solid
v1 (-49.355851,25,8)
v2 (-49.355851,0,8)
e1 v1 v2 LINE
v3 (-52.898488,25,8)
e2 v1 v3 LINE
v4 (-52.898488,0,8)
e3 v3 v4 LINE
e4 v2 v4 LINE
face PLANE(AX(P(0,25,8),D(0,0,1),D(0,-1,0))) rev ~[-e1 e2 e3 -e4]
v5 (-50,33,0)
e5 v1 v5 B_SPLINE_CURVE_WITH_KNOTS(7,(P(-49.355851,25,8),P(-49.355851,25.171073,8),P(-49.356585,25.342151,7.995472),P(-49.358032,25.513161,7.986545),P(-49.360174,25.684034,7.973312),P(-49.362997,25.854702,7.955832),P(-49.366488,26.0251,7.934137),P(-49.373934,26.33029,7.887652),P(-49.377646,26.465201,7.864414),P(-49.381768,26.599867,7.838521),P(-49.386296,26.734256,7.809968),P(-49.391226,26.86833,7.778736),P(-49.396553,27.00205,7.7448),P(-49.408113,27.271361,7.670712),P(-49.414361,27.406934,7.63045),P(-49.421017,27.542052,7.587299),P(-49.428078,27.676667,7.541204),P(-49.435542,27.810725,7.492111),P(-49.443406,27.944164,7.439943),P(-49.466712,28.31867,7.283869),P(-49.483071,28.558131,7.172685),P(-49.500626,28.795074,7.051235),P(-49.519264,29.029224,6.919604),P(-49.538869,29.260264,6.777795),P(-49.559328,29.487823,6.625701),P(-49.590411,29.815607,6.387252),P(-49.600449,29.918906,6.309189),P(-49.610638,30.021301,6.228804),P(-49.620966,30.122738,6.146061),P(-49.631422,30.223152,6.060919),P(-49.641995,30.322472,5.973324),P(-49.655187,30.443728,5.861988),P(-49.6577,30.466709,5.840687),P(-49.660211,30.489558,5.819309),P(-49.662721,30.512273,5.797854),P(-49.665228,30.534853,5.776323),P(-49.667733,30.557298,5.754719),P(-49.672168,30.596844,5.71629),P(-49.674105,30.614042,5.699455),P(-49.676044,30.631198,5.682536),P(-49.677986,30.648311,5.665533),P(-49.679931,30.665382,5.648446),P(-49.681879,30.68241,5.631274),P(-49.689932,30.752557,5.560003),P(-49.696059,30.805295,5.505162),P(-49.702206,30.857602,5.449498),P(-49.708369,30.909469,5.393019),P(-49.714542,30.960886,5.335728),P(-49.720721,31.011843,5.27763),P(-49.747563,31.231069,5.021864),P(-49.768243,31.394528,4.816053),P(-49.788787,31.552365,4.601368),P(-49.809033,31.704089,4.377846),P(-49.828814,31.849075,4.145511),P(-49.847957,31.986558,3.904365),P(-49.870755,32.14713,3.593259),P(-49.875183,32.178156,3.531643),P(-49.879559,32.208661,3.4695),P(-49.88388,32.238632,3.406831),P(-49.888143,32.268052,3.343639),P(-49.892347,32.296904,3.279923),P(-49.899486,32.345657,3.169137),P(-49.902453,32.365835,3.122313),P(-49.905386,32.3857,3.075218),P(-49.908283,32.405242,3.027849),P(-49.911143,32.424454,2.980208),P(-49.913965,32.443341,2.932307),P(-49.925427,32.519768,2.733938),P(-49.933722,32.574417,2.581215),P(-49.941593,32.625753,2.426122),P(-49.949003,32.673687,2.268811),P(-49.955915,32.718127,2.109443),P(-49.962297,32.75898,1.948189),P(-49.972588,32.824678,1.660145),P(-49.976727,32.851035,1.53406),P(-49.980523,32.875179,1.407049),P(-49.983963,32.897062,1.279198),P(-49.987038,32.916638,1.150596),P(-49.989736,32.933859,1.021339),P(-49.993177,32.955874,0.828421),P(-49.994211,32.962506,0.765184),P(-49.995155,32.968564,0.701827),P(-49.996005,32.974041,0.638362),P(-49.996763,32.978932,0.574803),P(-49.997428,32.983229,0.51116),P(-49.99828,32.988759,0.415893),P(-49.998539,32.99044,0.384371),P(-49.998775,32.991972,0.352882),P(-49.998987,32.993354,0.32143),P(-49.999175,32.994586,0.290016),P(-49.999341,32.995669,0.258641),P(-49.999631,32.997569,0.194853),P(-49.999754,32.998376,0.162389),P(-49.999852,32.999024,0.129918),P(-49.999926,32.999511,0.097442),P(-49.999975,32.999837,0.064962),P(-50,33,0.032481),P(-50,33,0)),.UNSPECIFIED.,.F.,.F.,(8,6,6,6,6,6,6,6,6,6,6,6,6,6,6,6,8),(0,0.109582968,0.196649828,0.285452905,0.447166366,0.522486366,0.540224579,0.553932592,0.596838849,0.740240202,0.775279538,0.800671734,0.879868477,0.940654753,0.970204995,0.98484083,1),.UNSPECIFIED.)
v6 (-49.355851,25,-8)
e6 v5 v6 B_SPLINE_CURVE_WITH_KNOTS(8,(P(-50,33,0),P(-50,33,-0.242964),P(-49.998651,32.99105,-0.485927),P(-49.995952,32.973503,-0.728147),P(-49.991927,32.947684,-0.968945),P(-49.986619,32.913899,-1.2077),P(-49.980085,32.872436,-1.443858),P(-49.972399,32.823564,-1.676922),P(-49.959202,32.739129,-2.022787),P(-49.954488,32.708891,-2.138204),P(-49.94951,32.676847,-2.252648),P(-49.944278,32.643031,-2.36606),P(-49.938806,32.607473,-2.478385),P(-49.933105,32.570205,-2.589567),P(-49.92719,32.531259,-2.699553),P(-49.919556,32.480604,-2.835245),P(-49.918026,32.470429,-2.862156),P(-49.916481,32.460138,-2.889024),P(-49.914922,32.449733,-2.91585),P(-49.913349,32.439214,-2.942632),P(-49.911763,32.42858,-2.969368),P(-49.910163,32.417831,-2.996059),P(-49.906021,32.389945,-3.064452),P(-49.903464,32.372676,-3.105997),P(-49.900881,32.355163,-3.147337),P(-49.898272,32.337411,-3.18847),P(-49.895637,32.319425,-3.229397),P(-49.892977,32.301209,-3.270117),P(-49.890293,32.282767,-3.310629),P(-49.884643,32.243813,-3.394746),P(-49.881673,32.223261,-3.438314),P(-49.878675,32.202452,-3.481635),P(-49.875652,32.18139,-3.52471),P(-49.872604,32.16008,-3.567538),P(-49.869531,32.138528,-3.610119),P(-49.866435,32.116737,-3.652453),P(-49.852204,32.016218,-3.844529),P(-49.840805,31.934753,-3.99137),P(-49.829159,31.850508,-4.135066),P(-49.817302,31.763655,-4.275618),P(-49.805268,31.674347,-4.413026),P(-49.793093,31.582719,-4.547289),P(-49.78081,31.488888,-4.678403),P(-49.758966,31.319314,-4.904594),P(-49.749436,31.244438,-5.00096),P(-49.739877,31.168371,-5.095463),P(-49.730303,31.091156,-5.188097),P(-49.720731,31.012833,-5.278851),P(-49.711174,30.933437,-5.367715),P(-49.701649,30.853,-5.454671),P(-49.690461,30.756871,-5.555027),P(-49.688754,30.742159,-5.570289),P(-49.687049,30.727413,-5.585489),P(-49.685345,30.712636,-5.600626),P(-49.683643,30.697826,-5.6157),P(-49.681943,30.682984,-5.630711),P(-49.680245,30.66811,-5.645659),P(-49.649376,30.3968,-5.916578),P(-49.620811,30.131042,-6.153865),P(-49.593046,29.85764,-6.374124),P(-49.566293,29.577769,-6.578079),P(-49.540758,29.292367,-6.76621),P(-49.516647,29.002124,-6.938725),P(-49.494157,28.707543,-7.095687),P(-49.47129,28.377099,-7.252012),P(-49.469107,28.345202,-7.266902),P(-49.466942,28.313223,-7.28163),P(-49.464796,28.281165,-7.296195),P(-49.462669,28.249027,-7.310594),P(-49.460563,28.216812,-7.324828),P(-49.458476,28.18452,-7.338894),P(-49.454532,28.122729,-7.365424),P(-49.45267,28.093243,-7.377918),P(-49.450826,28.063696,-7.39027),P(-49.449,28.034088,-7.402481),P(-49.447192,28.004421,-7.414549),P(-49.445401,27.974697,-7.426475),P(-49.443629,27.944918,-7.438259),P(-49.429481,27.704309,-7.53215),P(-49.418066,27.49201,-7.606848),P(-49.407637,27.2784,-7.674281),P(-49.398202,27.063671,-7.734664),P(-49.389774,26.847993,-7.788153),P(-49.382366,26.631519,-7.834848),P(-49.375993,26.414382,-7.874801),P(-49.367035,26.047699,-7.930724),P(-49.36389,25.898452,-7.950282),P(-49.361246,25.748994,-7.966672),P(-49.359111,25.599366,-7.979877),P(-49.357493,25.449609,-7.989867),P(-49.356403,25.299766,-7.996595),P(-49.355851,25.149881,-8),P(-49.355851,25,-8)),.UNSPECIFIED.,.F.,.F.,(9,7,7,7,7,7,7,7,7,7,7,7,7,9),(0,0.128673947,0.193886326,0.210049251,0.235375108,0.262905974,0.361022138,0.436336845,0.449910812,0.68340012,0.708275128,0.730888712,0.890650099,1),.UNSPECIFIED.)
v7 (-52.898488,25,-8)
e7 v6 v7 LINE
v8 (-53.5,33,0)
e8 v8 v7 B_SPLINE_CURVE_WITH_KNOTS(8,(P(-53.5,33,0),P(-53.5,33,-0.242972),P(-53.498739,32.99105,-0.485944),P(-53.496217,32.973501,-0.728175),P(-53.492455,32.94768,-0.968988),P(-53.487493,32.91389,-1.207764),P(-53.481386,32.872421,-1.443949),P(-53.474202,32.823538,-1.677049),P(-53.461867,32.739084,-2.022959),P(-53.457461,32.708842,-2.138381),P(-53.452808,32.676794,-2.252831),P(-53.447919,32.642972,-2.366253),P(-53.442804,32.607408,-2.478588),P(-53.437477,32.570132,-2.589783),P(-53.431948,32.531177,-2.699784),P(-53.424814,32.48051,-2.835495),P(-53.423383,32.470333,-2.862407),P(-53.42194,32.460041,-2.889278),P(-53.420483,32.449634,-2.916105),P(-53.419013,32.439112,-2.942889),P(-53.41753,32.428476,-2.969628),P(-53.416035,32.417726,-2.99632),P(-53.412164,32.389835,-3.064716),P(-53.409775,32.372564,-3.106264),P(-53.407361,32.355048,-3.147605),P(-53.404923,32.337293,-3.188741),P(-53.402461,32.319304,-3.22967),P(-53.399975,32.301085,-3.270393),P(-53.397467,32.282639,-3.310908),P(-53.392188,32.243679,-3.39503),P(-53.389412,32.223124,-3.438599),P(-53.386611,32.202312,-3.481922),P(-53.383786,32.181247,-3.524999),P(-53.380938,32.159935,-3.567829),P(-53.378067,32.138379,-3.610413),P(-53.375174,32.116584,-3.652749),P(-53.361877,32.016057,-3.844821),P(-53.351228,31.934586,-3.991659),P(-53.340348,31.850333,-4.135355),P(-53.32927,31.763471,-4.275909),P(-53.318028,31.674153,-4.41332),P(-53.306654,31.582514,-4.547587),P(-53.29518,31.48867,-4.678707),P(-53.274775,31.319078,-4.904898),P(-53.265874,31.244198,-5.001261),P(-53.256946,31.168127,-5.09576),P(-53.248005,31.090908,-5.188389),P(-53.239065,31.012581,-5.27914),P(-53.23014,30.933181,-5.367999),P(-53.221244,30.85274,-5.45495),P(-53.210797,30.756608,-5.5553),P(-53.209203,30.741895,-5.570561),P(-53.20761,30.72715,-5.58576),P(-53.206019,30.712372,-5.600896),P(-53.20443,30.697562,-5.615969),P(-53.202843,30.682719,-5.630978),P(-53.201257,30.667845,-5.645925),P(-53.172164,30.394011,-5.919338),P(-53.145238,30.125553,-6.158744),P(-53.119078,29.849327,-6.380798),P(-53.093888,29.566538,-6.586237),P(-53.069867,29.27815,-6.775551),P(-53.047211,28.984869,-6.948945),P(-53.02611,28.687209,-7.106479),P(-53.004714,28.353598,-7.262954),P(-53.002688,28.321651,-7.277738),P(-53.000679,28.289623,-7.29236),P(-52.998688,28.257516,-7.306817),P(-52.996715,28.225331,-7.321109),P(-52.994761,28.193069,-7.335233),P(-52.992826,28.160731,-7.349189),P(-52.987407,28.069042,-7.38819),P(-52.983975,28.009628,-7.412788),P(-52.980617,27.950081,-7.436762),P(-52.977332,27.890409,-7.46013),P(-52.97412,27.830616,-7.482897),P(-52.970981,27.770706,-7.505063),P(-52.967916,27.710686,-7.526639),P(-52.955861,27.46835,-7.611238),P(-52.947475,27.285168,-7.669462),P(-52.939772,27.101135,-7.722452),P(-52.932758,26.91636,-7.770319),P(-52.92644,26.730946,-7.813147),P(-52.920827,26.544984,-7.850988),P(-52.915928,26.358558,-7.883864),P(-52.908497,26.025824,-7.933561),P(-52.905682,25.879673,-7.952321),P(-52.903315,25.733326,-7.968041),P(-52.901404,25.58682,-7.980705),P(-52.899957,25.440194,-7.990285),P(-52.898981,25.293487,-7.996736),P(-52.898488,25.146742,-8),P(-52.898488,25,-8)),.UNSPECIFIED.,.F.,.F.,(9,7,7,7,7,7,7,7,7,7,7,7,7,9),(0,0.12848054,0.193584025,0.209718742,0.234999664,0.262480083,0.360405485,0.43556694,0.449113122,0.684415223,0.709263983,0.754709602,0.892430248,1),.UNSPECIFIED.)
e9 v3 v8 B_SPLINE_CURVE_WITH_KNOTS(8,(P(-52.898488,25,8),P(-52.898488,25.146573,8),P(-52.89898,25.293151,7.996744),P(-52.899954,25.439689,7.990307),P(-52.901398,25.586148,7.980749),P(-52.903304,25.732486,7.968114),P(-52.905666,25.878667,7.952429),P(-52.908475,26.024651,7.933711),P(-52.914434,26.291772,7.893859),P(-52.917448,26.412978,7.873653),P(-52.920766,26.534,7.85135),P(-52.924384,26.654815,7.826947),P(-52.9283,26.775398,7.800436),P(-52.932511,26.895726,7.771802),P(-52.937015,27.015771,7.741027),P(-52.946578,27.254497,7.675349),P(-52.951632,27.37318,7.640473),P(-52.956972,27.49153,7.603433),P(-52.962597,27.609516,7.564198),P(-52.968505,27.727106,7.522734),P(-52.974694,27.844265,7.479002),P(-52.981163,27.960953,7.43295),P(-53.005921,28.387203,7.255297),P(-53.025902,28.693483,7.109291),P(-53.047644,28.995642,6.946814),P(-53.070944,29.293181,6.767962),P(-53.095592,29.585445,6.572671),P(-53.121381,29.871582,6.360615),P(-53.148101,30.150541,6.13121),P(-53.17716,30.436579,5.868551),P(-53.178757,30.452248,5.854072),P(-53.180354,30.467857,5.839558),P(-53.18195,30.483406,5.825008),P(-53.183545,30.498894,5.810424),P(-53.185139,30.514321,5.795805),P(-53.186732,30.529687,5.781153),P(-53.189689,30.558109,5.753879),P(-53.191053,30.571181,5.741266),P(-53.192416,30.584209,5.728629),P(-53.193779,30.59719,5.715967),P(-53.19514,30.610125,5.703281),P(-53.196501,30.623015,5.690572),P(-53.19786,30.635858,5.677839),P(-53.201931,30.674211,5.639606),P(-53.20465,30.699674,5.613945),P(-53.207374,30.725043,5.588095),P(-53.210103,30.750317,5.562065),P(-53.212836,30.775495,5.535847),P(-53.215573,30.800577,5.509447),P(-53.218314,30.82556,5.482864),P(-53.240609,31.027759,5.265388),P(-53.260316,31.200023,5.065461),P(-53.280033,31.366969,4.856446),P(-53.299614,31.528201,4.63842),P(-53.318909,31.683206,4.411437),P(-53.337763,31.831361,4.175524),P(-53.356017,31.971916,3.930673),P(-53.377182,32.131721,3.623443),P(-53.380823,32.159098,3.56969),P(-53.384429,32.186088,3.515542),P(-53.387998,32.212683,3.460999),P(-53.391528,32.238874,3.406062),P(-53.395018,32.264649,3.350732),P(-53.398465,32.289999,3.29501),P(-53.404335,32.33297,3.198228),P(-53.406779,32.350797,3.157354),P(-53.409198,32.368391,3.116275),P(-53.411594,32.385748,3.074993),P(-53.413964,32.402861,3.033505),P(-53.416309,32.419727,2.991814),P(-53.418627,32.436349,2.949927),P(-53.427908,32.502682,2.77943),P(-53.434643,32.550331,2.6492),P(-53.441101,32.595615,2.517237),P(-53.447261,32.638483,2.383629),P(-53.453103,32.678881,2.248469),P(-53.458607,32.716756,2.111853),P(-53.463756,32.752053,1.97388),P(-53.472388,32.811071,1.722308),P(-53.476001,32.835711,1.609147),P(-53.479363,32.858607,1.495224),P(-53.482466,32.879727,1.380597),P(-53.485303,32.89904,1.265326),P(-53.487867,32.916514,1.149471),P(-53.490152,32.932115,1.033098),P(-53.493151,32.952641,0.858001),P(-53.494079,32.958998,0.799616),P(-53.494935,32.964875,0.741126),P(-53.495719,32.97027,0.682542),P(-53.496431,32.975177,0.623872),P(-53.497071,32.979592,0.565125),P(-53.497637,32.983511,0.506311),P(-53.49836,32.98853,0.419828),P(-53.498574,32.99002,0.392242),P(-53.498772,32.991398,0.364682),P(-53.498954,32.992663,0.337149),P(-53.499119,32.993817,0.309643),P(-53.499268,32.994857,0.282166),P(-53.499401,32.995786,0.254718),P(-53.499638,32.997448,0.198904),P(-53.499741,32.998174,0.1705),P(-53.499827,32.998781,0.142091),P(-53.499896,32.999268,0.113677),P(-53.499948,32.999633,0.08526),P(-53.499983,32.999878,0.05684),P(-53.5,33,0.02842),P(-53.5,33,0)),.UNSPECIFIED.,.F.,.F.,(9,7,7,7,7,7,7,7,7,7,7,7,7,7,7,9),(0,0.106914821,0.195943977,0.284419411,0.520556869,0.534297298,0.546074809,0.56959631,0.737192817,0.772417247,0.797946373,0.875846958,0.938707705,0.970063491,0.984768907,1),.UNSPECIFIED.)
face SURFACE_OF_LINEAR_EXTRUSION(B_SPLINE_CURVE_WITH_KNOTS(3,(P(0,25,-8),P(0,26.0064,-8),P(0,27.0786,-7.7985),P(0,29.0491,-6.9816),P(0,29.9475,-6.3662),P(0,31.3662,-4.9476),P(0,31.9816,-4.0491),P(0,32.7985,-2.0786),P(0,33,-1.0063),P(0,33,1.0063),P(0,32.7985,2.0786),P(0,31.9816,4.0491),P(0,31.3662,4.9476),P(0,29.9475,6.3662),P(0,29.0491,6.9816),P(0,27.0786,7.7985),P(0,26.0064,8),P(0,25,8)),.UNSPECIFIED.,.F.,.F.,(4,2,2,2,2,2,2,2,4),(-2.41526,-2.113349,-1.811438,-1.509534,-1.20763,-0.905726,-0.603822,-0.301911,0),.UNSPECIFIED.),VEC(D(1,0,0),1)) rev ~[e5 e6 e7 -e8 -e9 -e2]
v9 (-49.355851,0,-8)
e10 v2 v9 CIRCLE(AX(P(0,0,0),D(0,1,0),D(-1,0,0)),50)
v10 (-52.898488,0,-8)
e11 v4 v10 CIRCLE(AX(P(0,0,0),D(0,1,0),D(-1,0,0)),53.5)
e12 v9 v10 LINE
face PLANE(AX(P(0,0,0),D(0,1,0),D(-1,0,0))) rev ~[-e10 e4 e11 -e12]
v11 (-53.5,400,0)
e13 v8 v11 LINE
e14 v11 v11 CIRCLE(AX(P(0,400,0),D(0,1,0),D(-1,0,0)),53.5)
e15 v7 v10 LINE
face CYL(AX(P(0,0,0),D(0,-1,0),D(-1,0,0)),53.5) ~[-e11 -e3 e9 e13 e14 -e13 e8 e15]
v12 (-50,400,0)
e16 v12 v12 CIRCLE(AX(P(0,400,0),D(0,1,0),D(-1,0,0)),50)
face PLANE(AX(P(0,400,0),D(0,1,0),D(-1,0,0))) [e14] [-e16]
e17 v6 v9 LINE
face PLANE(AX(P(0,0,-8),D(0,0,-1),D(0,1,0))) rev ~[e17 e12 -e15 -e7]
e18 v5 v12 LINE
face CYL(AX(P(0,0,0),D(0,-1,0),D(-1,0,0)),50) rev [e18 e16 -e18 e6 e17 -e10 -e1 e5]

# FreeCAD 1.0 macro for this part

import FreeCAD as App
import Part
import Sketcher

V = App.Vector
Q = App.Units.Quantity

doc = App.newDocument("Part")
body = doc.addObject("PartDesign::Body", "Body")

sketch1 = body.newObject("Sketcher::SketchObject", "Sketch")
sketch1.AttachmentSupport = (doc.getObject("XZ_Plane"), [""])
sketch1.MapMode = "FlatFace"
sketch1.addGeometry(Part.Circle(V(0, 0, 0), V(0, 0, 1), 54), False)
sketch1.addGeometry(Part.Circle(V(0, 0, 0), V(0, 0, 1), 50), False)
sketch1.addConstraint(Sketcher.Constraint("Coincident", 0, 3, -1, 1))
sketch1.addConstraint(Sketcher.Constraint("Coincident", 1, 3, -1, 1))
sketch1.addConstraint(Sketcher.Constraint("Diameter", 1, Q("100 mm")))
sketch1.addConstraint(Sketcher.Constraint("Diameter", 0, Q("107 mm")))
pad1 = body.newObject("PartDesign::Pad", "Pad")
pad1.Profile = sketch1
pad1.Length = 400
pad1.Reversed = True

sketch2 = body.newObject("Sketcher::SketchObject", "Sketch001")
sketch2.AttachmentSupport = (doc.getObject("YZ_Plane"), [""])
sketch2.MapMode = "FlatFace"
sketch2.addGeometry(Part.LineSegment(V(0, -8, 0), V(25, -8, 0)), False)
sketch2.addGeometry(Part.BSplineCurve([V(25, -8, 0), V(26.0064, -8, 0), V(27.0786, -7.7985, 0), V(29.0491, -6.9816, 0), V(29.9475, -6.3662, 0), V(31.3662, -4.9476, 0), V(31.9816, -4.0491, 0), V(32.7985, -2.0786, 0), V(33, -1.0063, 0), V(33, 1.0063, 0), V(32.7985, 2.0786, 0), V(31.9816, 4.0491, 0), V(31.3662, 4.9476, 0), V(29.9475, 6.3662, 0), V(29.0491, 6.9816, 0), V(27.0786, 7.7985, 0), V(26.0064, 8, 0), V(25, 8, 0)], [4, 2, 2, 2, 2, 2, 2, 2, 4], [-2.41526, -2.113349, -1.811438, -1.509534, -1.20763, -0.905726, -0.603822, -0.301911, 0], False, 3, [1, 1, 1, 1, 1, 1, 1, 1, 1, 1, 1, 1, 1, 1, 1, 1, 1, 1], False), False)
sketch2.addGeometry(Part.LineSegment(V(25, 8, 0), V(0, 8, 0)), False)
sketch2.addGeometry(Part.LineSegment(V(0, 8, 0), V(0, -8, 0)), False)
sketch2.addConstraint(Sketcher.Constraint("Block", 1))
sketch2.addConstraint(Sketcher.Constraint("Coincident", 0, 2, 1, 1))
sketch2.addConstraint(Sketcher.Constraint("Coincident", 1, 2, 2, 1))
sketch2.addConstraint(Sketcher.Constraint("Coincident", 2, 2, 3, 1))
sketch2.addConstraint(Sketcher.Constraint("Coincident", 3, 2, 0, 1))
sketch2.addConstraint(Sketcher.Constraint("Horizontal", 0))
sketch2.addConstraint(Sketcher.Constraint("Horizontal", 2))
sketch2.addConstraint(Sketcher.Constraint("Vertical", 3))
sketch2.addConstraint(Sketcher.Constraint("PointOnObject", 2, 2, -2))
pocket1 = body.newObject("PartDesign::Pocket", "Pocket")
pocket1.Profile = sketch2
pocket1.Type = "ThroughAll"

doc.recompute()
